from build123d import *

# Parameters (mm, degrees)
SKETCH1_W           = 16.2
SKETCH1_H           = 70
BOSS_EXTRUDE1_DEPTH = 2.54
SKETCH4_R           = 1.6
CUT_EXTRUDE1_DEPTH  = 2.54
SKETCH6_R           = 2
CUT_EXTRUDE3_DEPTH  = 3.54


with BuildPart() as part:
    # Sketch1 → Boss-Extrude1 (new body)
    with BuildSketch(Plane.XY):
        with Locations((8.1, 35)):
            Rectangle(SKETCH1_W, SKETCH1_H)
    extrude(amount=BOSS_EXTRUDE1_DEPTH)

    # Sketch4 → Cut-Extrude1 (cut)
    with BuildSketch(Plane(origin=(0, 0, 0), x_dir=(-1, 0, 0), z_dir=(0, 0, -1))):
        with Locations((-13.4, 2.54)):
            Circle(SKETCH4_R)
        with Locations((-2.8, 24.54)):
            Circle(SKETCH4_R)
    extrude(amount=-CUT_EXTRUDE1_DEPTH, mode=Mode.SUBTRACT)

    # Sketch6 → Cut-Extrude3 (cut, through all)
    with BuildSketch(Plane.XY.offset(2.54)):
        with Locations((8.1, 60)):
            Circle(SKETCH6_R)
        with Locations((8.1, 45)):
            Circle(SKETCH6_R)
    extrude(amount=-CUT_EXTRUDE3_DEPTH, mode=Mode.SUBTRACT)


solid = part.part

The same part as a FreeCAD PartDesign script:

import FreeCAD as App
import Part
import Sketcher

V = App.Vector
Q = App.Units.Quantity


def add_polygon(sketch, points):
    """Adds a closed chain of lines whose ends are joined by coincident constraints."""
    first, n = sketch.GeometryCount, len(points)
    for a, b in zip(points, points[1:] + points[:1]):
        sketch.addGeometry(Part.LineSegment(App.Vector(*a, 0), App.Vector(*b, 0)), False)
    for i in range(n):
        sketch.addConstraint(Sketcher.Constraint("Coincident", first + i, 2, first + (i + 1) % n, 1))

doc = App.newDocument("Part")
body = doc.addObject("PartDesign::Body", "Body")

# Sketch on XY plane
sketch1 = body.newObject("Sketcher::SketchObject", "Sketch")
sketch1.AttachmentSupport = (doc.getObject("XY_Plane"), [""])
sketch1.MapMode = "FlatFace"
add_polygon(sketch1, [(0, 70), (0, 0), (16, 0), (16, 70)])  # lines 0-3
sketch1.addConstraint(Sketcher.Constraint("Vertical", 0))
sketch1.addConstraint(Sketcher.Constraint("Horizontal", 1))
sketch1.addConstraint(Sketcher.Constraint("Vertical", 2))
sketch1.addConstraint(Sketcher.Constraint("Horizontal", 3))
sketch1.addConstraint(Sketcher.Constraint("Coincident", 0, 2, -1, 1))
sketch1.addConstraint(Sketcher.Constraint("DistanceY", 0, 2, 0, 1, Q("70 mm")))
sketch1.addConstraint(Sketcher.Constraint("DistanceX", 1, 1, 1, 2, Q("16.2 mm")))
pad1 = body.newObject("PartDesign::Pad", "Pad")
pad1.Profile = sketch1
pad1.Length = 2.54

# Sketch on XY plane
sketch2 = body.newObject("Sketcher::SketchObject", "Sketch001")
sketch2.AttachmentSupport = (doc.getObject("XY_Plane"), [""])
sketch2.MapMode = "FlatFace"
sketch2.addGeometry(Part.Circle(V(13.4, 2.5, 0), V(0, 0, 1), 1.6), False)
sketch2.addGeometry(Part.Circle(V(2.8, 24.5, 0), V(0, 0, 1), 1.6), False)
sketch2.addConstraint(Sketcher.Constraint("Equal", 0, 1))
sketch2.addConstraint(Sketcher.Constraint("Diameter", 0, Q("3.2 mm")))
sketch2.addConstraint(Sketcher.Constraint("DistanceY", 0, 3, 1, 3, Q("22 mm")))
sketch2.addConstraint(Sketcher.Constraint("DistanceX", -1, 1, 0, 3, Q("13.4 mm")))
sketch2.addConstraint(Sketcher.Constraint("DistanceX", -1, 1, 1, 3, Q("2.8 mm")))
sketch2.addConstraint(Sketcher.Constraint("DistanceY", -1, 1, 0, 3, Q("2.54 mm")))
pocket1 = body.newObject("PartDesign::Pocket", "Pocket")
pocket1.Profile = sketch2
pocket1.Length = 2.54
pocket1.Reversed = True

# Sketch on XY plane
sketch3 = body.newObject("Sketcher::SketchObject", "Sketch002")
sketch3.AttachmentSupport = (doc.getObject("XY_Plane"), [""])
sketch3.MapMode = "FlatFace"
sketch3.AttachmentOffset = App.Placement(V(0, 0, 2.54), App.Rotation())
sketch3.addGeometry(Part.Circle(V(8.1, 60, 0), V(0, 0, 1), 2), False)
sketch3.addGeometry(Part.Circle(V(8.1, 45, 0), V(0, 0, 1), 2), False)
sketch3.addConstraint(Sketcher.Constraint("Equal", 0, 1))
sketch3.addConstraint(Sketcher.Constraint("Vertical", 0, 3, 1, 3))
sketch3.addConstraint(Sketcher.Constraint("Diameter", 0, Q("4 mm")))
sketch3.addConstraint(Sketcher.Constraint("DistanceY", -1, 1, 0, 3, Q("60 mm")))
sketch3.addConstraint(Sketcher.Constraint("DistanceY", -1, 1, 1, 3, Q("45 mm")))
sketch3.addConstraint(Sketcher.Constraint("DistanceX", -1, 1, 0, 3, Q("8.1 mm")))
pocket2 = body.newObject("PartDesign::Pocket", "Pocket001")
pocket2.Profile = sketch3
pocket2.Type = "ThroughAll"

doc.recompute()
